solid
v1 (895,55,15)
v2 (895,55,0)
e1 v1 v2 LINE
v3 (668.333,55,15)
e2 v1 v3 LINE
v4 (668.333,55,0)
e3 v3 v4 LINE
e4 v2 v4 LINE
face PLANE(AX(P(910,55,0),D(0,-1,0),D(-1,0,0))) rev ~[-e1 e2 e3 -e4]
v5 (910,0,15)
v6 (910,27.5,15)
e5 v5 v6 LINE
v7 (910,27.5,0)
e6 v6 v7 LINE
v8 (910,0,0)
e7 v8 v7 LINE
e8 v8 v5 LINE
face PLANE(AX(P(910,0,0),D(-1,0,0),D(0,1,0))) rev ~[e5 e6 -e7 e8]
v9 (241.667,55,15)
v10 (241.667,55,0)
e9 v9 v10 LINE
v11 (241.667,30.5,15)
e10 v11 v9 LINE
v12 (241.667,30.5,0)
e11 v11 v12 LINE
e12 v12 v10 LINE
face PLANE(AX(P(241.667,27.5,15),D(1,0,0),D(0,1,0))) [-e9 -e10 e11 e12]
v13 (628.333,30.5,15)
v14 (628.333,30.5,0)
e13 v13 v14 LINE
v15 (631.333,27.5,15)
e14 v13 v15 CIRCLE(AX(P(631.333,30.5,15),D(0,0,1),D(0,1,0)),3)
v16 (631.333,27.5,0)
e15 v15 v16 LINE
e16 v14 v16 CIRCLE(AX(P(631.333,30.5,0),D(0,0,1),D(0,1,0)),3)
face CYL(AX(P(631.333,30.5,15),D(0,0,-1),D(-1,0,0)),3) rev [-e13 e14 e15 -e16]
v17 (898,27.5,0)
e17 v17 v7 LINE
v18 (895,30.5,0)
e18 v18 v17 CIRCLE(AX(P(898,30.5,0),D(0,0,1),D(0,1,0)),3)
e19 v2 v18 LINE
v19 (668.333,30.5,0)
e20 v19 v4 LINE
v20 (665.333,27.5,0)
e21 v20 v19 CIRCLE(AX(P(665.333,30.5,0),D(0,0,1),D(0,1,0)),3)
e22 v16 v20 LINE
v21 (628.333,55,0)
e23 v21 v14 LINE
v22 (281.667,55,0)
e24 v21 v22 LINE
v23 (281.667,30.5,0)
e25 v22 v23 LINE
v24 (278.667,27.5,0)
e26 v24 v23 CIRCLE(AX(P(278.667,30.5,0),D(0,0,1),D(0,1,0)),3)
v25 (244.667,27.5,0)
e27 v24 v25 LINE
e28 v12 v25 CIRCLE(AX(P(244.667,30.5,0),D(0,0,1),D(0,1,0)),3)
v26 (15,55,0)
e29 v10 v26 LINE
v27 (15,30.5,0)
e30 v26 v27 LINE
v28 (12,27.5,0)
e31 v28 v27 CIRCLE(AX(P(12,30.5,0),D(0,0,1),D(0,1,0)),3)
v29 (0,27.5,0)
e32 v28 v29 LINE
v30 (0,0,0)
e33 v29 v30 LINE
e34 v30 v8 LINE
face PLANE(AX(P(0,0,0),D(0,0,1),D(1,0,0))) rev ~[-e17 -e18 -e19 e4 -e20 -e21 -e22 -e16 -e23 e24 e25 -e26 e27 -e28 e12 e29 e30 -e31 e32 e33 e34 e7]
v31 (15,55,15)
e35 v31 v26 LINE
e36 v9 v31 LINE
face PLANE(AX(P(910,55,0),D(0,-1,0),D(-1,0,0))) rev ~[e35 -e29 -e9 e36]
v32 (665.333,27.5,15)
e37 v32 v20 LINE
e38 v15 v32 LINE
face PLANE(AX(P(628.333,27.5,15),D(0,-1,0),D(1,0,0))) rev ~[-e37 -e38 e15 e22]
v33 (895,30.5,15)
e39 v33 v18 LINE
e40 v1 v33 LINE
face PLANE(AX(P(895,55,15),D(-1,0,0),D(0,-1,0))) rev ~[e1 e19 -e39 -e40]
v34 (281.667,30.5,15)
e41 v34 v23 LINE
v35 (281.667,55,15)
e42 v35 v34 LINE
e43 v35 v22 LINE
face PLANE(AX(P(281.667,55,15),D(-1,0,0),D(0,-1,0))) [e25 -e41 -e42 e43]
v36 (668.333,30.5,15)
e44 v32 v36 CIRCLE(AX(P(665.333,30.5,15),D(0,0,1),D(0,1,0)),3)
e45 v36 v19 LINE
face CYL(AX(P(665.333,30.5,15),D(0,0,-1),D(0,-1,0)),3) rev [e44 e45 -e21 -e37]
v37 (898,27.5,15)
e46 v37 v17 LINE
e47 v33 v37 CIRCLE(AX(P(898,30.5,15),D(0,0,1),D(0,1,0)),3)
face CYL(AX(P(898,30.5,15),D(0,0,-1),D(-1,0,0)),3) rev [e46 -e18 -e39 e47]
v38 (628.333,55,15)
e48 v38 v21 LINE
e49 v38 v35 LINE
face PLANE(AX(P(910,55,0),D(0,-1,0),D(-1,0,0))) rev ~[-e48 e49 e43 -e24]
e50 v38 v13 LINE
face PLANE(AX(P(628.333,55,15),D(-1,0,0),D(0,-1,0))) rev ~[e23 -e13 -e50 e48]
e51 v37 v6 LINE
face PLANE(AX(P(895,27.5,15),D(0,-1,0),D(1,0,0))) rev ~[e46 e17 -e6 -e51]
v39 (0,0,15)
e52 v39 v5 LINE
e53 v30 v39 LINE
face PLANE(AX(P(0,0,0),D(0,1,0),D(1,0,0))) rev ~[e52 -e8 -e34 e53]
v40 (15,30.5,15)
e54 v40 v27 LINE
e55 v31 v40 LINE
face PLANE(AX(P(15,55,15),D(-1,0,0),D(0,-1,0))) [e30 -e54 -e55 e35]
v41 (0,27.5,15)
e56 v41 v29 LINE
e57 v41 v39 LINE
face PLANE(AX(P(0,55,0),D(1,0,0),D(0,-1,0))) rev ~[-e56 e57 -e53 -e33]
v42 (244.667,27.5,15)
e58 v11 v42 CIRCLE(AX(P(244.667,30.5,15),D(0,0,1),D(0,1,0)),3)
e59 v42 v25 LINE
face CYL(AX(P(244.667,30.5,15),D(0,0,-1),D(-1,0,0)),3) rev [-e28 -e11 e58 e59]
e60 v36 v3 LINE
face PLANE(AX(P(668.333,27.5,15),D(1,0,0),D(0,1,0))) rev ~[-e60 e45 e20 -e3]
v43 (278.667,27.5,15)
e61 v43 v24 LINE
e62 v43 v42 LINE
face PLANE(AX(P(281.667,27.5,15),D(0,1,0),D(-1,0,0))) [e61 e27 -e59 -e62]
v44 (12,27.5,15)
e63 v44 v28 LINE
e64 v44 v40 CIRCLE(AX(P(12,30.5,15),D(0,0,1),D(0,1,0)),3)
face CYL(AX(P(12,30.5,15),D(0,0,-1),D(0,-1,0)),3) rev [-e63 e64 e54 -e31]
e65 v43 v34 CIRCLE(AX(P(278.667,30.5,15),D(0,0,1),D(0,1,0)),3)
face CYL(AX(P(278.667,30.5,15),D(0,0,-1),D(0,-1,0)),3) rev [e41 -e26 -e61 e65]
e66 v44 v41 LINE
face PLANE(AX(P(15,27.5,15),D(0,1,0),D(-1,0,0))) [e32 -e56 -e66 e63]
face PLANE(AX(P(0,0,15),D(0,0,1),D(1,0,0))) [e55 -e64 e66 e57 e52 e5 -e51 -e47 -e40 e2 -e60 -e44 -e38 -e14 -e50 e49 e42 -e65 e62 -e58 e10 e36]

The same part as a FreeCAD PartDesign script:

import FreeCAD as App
import Part
import Sketcher
from FreeCAD import Vector


def edges_at(feature, points):
    """Names of the edges that pass closest to the given points."""
    edges = feature.Shape.Edges
    near = lambda p: min(range(len(edges)), key=lambda i: edges[i].distToShape(Part.Vertex(*p))[0])
    return sorted({f"Edge{near(p) + 1}" for p in points})

doc = App.newDocument("Part")
params = doc.addObject("Spreadsheet::Sheet", "Params")
for row, (alias, value) in enumerate([
    ("sketch1_width", "910 mm"),
    ("sketch1_height", "55 mm"),
    ("pad1_length", "15 mm"),
    ("sketch2_width", "15 mm"),
    ("sketch2_width2", "40 mm"),
    ("sketch2_height", "27.5 mm"),
    ("fillet_radius", "3 mm"),
], start=1):
    params.set(f"A{row}", alias)
    params.set(f"B{row}", "=" + value)
    params.setAlias(f"B{row}", alias)

body = doc.addObject("PartDesign::Body", "Body")

sketch1 = doc.addObject("Sketcher::SketchObject", "Sketch")
body.addObject(sketch1)
sketch1.AttachmentSupport = (doc.XY_Plane, [""])
sketch1.MapMode = "FlatFace"
sketch1.addGeometry(Part.LineSegment(Vector(0, 55, 0), Vector(0, 0, 0)), False)
sketch1.addGeometry(Part.LineSegment(Vector(0, 0, 0), Vector(910, 0, 0)), False)
sketch1.addGeometry(Part.LineSegment(Vector(910, 0, 0), Vector(910, 55, 0)), False)
sketch1.addGeometry(Part.LineSegment(Vector(910, 55, 0), Vector(0, 55, 0)), False)
sketch1.addConstraint(Sketcher.Constraint("Coincident", 0, 2, 1, 1))
sketch1.addConstraint(Sketcher.Constraint("Coincident", 1, 2, 2, 1))
sketch1.addConstraint(Sketcher.Constraint("Coincident", 2, 2, 3, 1))
sketch1.addConstraint(Sketcher.Constraint("Coincident", 3, 2, 0, 1))
sketch1.addConstraint(Sketcher.Constraint("Vertical", 0))
sketch1.addConstraint(Sketcher.Constraint("Horizontal", 1))
sketch1.addConstraint(Sketcher.Constraint("Vertical", 2))
sketch1.addConstraint(Sketcher.Constraint("Horizontal", 3))
sketch1.addConstraint(Sketcher.Constraint("Coincident", 0, 2, -1, 1))
sketch1.addConstraint(Sketcher.Constraint("DistanceX", 1, 1, 1, 2, 910.0))
sketch1.addConstraint(Sketcher.Constraint("DistanceY", 0, 2, 0, 1, 55.0))
sketch1.setExpression("Constraints[9]", "Params.sketch1_width")
sketch1.setExpression("Constraints[10]", "Params.sketch1_height")
pad1 = doc.addObject("PartDesign::Pad", "Pad")
body.addObject(pad1)
pad1.Profile = sketch1
pad1.setExpression("Length", "Params.pad1_length")

sketch2 = doc.addObject("Sketcher::SketchObject", "Sketch001")
body.addObject(sketch2)
sketch2.AttachmentSupport = (doc.XY_Plane, [""])
sketch2.MapMode = "FlatFace"
sketch2.AttachmentOffset = App.Placement(Vector(0, 0, 15), App.Rotation())
sketch2.addGeometry(Part.LineSegment(Vector(910, 28, 0), Vector(910, 55, 0)), False)
sketch2.addGeometry(Part.LineSegment(Vector(910, 55, 0), Vector(895, 55, 0)), False)
sketch2.addGeometry(Part.LineSegment(Vector(895, 55, 0), Vector(895, 28, 0)), False)
sketch2.addGeometry(Part.LineSegment(Vector(895, 28, 0), Vector(910, 28, 0)), False)
sketch2.addGeometry(Part.LineSegment(Vector(15, 28, 0), Vector(15, 55, 0)), False)
sketch2.addGeometry(Part.LineSegment(Vector(15, 55, 0), Vector(0, 55, 0)), False)
sketch2.addGeometry(Part.LineSegment(Vector(0, 55, 0), Vector(0, 28, 0)), False)
sketch2.addGeometry(Part.LineSegment(Vector(0, 28, 0), Vector(15, 28, 0)), False)
sketch2.addGeometry(Part.LineSegment(Vector(282, 28, 0), Vector(282, 55, 0)), False)
sketch2.addGeometry(Part.LineSegment(Vector(282, 55, 0), Vector(242, 55, 0)), False)
sketch2.addGeometry(Part.LineSegment(Vector(242, 55, 0), Vector(242, 28, 0)), False)
sketch2.addGeometry(Part.LineSegment(Vector(242, 28, 0), Vector(282, 28, 0)), False)
sketch2.addGeometry(Part.LineSegment(Vector(668, 28, 0), Vector(668, 55, 0)), False)
sketch2.addGeometry(Part.LineSegment(Vector(668, 55, 0), Vector(628, 55, 0)), False)
sketch2.addGeometry(Part.LineSegment(Vector(628, 55, 0), Vector(628, 28, 0)), False)
sketch2.addGeometry(Part.LineSegment(Vector(628, 28, 0), Vector(668, 28, 0)), False)
sketch2.addConstraint(Sketcher.Constraint("Coincident", 0, 2, 1, 1))
sketch2.addConstraint(Sketcher.Constraint("Coincident", 1, 2, 2, 1))
sketch2.addConstraint(Sketcher.Constraint("Coincident", 2, 2, 3, 1))
sketch2.addConstraint(Sketcher.Constraint("Coincident", 3, 2, 0, 1))
sketch2.addConstraint(Sketcher.Constraint("Coincident", 4, 2, 5, 1))
sketch2.addConstraint(Sketcher.Constraint("Coincident", 5, 2, 6, 1))
sketch2.addConstraint(Sketcher.Constraint("Coincident", 6, 2, 7, 1))
sketch2.addConstraint(Sketcher.Constraint("Coincident", 7, 2, 4, 1))
sketch2.addConstraint(Sketcher.Constraint("Coincident", 8, 2, 9, 1))
sketch2.addConstraint(Sketcher.Constraint("Coincident", 9, 2, 10, 1))
sketch2.addConstraint(Sketcher.Constraint("Coincident", 10, 2, 11, 1))
sketch2.addConstraint(Sketcher.Constraint("Coincident", 11, 2, 8, 1))
sketch2.addConstraint(Sketcher.Constraint("Coincident", 12, 2, 13, 1))
sketch2.addConstraint(Sketcher.Constraint("Coincident", 13, 2, 14, 1))
sketch2.addConstraint(Sketcher.Constraint("Coincident", 14, 2, 15, 1))
sketch2.addConstraint(Sketcher.Constraint("Coincident", 15, 2, 12, 1))
sketch2.addConstraint(Sketcher.Constraint("Vertical", 0))
sketch2.addConstraint(Sketcher.Constraint("Horizontal", 1))
sketch2.addConstraint(Sketcher.Constraint("Vertical", 2))
sketch2.addConstraint(Sketcher.Constraint("Horizontal", 3))
sketch2.addConstraint(Sketcher.Constraint("Vertical", 4))
sketch2.addConstraint(Sketcher.Constraint("Horizontal", 5))
sketch2.addConstraint(Sketcher.Constraint("Vertical", 6))
sketch2.addConstraint(Sketcher.Constraint("Horizontal", 7))
sketch2.addConstraint(Sketcher.Constraint("Vertical", 8))
sketch2.addConstraint(Sketcher.Constraint("Horizontal", 9))
sketch2.addConstraint(Sketcher.Constraint("Vertical", 10))
sketch2.addConstraint(Sketcher.Constraint("Horizontal", 11))
sketch2.addConstraint(Sketcher.Constraint("Vertical", 12))
sketch2.addConstraint(Sketcher.Constraint("Horizontal", 13))
sketch2.addConstraint(Sketcher.Constraint("Vertical", 14))
sketch2.addConstraint(Sketcher.Constraint("Horizontal", 15))
sketch2.addConstraint(Sketcher.Constraint("PointOnObject", 5, 2, -2))
sketch2.addConstraint(Sketcher.Constraint("Horizontal", 1, 2, 4, 2))
sketch2.addConstraint(Sketcher.Constraint("Horizontal", 3, 2, 6, 2))
sketch2.addConstraint(Sketcher.Constraint("Horizontal", 5, 2, 8, 2))
sketch2.addConstraint(Sketcher.Constraint("Horizontal", 7, 2, 10, 2))
sketch2.addConstraint(Sketcher.Constraint("Horizontal", 9, 2, 12, 2))
sketch2.addConstraint(Sketcher.Constraint("Horizontal", 11, 2, 14, 2))
sketch2.addConstraint(Sketcher.Constraint("Equal", 3, 5))
sketch2.addConstraint(Sketcher.Constraint("Equal", 11, 13))
sketch2.addConstraint(Sketcher.Constraint("DistanceX", 1, 2, 1, 1, 15.0))
sketch2.addConstraint(Sketcher.Constraint("DistanceX", 9, 2, 9, 1, 40.0))
sketch2.addConstraint(Sketcher.Constraint("DistanceY", 0, 1, 0, 2, 27.5))
sketch2.addConstraint(Sketcher.Constraint("DistanceY", -1, 1, 2, 2, 27.5))
sketch2.addConstraint(Sketcher.Constraint("DistanceX", -1, 1, 0, 2, 910.0))
sketch2.addConstraint(Sketcher.Constraint("DistanceX", 4, 2, 9, 2, 226.667))
sketch2.addConstraint(Sketcher.Constraint("DistanceX", 12, 2, 1, 2, 226.667))
sketch2.setExpression("Constraints[41]", "Params.sketch2_width")
sketch2.setExpression("Constraints[42]", "Params.sketch2_width2")
sketch2.setExpression("Constraints[43]", "Params.sketch2_height")
pocket1 = doc.addObject("PartDesign::Pocket", "Pocket")
body.addObject(pocket1)
pocket1.Profile = sketch2
pocket1.Type = "ThroughAll"
doc.recompute()

fillet = doc.addObject("PartDesign::Fillet", "Fillet")
body.addObject(fillet)
fillet.Base = (pocket1, edges_at(pocket1, [
    (895, 27.5, 7.5),
    (668.333, 27.5, 7.5),
    (628.333, 27.5, 7.5),
    (281.667, 27.5, 7.5),
    (241.667, 27.5, 7.5),
    (15, 27.5, 7.5),
]))
fillet.setExpression("Radius", "Params.fillet_radius")

doc.recompute()
